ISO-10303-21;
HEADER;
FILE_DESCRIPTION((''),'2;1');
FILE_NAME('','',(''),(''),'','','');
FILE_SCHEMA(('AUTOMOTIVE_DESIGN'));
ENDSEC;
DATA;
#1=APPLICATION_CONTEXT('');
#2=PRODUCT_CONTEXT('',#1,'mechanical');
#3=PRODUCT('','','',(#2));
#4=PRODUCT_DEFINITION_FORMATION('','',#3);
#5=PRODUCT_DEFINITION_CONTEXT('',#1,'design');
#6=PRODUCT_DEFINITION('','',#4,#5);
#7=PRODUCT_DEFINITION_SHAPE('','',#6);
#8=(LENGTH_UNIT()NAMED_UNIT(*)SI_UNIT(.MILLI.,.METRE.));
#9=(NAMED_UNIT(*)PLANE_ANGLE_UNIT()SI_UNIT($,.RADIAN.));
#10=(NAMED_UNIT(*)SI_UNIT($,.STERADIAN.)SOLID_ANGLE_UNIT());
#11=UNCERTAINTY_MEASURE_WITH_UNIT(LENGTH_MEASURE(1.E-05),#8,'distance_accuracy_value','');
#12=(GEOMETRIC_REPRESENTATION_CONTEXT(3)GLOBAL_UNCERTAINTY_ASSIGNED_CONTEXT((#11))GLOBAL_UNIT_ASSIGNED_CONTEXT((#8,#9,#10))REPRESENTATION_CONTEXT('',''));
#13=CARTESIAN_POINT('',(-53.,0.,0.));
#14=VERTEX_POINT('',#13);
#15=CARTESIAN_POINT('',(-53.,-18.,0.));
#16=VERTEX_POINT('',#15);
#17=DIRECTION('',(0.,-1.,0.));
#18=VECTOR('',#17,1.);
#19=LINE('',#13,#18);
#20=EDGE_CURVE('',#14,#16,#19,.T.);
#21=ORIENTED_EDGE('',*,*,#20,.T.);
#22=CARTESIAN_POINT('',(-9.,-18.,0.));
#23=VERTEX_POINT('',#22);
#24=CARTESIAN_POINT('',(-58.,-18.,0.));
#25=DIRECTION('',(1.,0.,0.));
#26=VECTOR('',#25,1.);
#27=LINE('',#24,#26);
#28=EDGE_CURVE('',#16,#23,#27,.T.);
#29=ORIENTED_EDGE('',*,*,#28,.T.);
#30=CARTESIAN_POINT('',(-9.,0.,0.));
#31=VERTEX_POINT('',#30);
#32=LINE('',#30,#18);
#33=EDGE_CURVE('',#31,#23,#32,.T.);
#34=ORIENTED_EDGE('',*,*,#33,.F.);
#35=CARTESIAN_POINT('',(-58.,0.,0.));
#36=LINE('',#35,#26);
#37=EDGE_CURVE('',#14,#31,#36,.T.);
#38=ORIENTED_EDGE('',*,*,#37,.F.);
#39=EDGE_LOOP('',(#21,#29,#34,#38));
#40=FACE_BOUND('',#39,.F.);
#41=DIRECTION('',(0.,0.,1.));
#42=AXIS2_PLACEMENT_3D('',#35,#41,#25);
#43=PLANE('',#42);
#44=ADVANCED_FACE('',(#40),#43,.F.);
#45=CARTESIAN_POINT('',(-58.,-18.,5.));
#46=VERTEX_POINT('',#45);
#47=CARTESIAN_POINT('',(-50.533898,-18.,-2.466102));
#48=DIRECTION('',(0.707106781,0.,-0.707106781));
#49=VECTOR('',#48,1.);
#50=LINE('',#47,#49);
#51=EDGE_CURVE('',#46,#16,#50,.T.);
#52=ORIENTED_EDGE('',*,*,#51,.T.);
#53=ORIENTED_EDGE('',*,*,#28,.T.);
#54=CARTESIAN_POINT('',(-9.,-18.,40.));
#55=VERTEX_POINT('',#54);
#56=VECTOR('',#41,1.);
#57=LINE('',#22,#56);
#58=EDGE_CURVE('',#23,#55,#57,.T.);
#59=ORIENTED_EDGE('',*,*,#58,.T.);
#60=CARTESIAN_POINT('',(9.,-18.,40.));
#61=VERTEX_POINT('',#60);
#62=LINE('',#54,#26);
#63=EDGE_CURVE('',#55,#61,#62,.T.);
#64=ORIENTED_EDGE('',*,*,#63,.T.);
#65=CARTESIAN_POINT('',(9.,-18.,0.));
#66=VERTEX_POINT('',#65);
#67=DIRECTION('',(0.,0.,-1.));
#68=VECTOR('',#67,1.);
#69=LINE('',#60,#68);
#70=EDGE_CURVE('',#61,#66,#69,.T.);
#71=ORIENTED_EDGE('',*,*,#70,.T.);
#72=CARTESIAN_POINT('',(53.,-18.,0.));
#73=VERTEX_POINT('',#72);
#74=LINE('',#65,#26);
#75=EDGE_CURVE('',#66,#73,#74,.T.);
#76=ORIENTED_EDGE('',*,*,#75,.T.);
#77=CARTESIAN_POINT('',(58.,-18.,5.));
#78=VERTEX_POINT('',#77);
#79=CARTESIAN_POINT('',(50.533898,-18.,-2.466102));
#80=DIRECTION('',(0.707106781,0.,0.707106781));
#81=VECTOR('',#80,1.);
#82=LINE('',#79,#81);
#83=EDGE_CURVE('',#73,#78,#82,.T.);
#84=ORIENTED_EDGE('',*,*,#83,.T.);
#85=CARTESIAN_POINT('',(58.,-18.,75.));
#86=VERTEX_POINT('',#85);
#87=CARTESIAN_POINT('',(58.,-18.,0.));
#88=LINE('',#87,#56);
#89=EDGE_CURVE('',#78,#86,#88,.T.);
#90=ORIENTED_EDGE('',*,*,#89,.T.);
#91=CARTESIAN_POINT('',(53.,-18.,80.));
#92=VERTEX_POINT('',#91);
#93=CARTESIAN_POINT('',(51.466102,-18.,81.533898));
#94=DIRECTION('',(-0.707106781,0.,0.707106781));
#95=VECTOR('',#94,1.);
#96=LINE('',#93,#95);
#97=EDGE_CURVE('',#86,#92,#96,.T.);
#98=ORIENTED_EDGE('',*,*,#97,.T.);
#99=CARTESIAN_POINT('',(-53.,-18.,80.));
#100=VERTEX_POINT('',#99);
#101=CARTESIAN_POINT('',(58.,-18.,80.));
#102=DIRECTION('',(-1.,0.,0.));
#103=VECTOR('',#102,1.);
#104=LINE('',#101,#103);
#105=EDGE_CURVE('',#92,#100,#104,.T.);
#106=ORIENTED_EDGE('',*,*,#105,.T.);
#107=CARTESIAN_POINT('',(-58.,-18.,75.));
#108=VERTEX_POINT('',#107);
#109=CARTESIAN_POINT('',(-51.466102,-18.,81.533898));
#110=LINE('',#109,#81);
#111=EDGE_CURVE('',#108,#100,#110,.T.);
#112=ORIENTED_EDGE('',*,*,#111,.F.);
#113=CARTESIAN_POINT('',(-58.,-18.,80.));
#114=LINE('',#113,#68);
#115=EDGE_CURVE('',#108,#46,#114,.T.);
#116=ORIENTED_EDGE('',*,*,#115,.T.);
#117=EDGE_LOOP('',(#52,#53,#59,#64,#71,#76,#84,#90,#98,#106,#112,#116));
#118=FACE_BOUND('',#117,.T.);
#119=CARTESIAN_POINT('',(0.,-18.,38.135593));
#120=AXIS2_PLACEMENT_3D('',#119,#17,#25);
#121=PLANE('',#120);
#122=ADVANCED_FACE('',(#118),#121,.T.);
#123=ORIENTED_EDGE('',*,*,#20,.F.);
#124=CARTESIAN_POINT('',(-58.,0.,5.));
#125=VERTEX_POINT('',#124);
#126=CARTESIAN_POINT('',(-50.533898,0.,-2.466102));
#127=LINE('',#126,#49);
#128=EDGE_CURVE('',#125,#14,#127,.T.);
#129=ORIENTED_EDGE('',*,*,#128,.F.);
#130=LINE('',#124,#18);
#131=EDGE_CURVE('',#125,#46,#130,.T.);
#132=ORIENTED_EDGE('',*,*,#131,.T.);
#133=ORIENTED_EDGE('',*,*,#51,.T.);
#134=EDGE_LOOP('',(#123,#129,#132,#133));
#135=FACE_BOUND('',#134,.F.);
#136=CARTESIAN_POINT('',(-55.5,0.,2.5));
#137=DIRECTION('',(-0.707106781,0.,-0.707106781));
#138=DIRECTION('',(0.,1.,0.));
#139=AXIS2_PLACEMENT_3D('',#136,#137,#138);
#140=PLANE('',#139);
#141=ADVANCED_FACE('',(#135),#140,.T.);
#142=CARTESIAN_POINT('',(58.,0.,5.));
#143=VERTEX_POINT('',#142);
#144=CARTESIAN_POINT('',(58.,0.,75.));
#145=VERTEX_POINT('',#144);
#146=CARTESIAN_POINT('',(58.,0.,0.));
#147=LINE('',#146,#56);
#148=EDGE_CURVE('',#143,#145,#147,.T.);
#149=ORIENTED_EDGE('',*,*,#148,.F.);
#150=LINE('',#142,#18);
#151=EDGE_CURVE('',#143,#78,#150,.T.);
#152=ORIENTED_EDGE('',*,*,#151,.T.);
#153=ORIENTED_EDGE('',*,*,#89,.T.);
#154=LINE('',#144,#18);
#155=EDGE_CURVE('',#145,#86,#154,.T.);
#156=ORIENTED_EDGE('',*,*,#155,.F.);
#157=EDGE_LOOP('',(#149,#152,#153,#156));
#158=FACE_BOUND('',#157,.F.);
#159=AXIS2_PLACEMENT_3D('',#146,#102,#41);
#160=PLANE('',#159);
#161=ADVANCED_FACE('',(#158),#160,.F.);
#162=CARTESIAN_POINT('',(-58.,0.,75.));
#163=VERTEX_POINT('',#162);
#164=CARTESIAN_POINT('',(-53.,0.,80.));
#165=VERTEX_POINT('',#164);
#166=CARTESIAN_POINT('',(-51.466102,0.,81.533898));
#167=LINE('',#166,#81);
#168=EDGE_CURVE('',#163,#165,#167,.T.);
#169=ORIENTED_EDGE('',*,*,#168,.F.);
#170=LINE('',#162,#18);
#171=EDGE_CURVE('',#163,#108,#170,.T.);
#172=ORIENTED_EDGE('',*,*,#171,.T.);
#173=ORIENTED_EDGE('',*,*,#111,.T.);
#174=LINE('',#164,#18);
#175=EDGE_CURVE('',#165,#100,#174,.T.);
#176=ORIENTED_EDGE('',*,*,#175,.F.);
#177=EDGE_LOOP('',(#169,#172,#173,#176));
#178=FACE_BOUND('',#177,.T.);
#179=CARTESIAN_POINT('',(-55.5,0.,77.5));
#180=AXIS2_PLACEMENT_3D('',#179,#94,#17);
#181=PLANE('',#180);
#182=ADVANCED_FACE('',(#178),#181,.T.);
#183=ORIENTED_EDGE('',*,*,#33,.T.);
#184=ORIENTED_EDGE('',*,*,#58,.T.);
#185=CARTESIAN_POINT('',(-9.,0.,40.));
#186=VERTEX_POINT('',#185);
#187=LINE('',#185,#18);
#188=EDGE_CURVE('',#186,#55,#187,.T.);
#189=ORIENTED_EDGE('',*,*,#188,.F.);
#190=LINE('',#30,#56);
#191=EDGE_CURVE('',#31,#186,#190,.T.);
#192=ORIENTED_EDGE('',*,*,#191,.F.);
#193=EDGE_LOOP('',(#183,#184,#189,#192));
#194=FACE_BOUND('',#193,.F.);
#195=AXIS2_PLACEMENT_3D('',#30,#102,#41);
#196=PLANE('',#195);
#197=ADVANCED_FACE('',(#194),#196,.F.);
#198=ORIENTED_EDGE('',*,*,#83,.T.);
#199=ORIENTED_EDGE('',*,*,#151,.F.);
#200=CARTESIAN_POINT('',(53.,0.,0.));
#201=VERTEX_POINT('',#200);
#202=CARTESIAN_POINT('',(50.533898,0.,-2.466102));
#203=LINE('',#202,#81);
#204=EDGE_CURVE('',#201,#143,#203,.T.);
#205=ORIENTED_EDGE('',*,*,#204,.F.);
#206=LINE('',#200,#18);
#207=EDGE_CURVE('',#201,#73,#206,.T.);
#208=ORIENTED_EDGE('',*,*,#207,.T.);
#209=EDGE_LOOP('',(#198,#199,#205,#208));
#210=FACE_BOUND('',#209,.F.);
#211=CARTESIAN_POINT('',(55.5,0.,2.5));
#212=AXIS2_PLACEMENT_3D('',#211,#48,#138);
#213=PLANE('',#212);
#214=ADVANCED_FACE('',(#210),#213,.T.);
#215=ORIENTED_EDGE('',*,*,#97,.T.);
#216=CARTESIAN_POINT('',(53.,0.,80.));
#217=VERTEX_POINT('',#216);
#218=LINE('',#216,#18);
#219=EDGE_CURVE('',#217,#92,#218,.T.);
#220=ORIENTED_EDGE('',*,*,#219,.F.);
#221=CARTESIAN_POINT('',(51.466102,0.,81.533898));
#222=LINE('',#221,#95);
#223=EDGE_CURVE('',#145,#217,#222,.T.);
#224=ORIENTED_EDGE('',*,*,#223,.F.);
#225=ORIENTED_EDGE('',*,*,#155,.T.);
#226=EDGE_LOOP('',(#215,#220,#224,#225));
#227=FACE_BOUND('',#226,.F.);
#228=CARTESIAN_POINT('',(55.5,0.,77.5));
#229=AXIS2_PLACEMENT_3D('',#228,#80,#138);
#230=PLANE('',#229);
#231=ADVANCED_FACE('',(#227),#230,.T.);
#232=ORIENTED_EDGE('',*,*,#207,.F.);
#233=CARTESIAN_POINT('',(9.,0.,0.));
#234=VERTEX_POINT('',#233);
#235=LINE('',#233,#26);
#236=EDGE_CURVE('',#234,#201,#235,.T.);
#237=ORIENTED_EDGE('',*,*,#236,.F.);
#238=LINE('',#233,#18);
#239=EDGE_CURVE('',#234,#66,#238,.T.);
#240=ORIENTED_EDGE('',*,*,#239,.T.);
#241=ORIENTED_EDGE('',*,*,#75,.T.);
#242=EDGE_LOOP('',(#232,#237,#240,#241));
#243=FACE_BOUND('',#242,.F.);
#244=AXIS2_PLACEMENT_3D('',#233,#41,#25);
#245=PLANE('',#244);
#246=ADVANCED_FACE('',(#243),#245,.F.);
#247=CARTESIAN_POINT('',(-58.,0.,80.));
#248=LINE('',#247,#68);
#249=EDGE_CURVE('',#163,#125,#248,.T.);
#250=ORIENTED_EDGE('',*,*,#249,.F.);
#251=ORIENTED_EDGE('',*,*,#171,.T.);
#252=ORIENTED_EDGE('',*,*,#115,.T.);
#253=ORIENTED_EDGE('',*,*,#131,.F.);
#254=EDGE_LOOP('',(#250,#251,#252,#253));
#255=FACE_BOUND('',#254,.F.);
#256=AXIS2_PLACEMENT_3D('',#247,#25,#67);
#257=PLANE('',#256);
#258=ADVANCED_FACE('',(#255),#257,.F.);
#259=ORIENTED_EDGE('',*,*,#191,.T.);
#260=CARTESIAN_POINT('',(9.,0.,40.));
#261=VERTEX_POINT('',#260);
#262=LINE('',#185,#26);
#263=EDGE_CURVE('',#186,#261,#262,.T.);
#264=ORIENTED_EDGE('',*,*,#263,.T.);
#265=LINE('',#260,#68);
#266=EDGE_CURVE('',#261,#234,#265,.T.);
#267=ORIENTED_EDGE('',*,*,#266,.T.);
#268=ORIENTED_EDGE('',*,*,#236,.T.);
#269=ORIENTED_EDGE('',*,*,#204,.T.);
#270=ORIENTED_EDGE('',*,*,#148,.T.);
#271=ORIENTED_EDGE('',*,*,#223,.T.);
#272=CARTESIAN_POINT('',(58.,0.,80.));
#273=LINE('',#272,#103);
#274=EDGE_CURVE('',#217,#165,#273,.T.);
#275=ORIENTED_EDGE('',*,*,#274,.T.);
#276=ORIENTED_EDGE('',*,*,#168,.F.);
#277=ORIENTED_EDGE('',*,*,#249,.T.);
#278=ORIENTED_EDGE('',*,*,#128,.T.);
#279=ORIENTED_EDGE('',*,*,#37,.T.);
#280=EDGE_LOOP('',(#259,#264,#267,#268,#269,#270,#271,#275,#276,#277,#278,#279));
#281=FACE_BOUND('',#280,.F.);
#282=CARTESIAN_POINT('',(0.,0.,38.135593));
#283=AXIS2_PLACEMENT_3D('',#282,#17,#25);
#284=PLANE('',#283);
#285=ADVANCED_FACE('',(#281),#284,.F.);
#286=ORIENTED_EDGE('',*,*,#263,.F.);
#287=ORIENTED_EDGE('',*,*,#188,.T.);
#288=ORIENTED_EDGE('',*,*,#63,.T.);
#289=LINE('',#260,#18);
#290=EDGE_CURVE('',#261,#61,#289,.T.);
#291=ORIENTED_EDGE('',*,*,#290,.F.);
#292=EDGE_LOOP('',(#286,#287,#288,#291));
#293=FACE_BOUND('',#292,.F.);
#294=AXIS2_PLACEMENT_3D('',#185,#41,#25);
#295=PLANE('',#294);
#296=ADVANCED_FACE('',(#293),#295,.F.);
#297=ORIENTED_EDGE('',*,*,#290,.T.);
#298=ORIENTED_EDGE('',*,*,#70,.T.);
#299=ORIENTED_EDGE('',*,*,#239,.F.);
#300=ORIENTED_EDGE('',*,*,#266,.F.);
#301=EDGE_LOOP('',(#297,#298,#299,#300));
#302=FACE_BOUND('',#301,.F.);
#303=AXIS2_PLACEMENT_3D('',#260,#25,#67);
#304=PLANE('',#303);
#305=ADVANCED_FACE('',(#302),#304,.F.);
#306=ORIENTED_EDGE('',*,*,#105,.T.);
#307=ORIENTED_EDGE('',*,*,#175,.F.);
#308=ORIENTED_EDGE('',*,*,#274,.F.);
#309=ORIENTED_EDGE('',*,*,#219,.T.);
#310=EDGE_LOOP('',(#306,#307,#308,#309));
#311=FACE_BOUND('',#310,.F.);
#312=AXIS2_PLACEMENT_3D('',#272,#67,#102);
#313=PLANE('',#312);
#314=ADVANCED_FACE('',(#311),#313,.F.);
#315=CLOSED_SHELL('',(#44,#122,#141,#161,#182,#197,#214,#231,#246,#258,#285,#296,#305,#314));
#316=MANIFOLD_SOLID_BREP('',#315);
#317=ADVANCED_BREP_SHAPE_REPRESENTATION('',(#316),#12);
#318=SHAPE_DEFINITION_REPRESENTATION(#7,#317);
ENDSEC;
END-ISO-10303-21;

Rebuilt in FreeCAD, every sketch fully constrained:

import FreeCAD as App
import Part
import Sketcher

V = App.Vector
Q = App.Units.Quantity


def edges_at(feature, points):
    """Names of the edges that pass closest to the given points."""
    edges = feature.Shape.Edges
    near = lambda p: min(range(len(edges)), key=lambda i: edges[i].distToShape(Part.Vertex(*p))[0])
    return sorted({f"Edge{near(p) + 1}" for p in points})


def add_polygon(sketch, points):
    """Adds a closed chain of lines whose ends are joined by coincident constraints."""
    first, n = sketch.GeometryCount, len(points)
    for a, b in zip(points, points[1:] + points[:1]):
        sketch.addGeometry(Part.LineSegment(App.Vector(*a, 0), App.Vector(*b, 0)), False)
    for i in range(n):
        sketch.addConstraint(Sketcher.Constraint("Coincident", first + i, 2, first + (i + 1) % n, 1))

doc = App.newDocument("Part")
body = doc.addObject("PartDesign::Body", "Body")

sketch1 = doc.addObject("Sketcher::SketchObject", "Sketch")
body.addObject(sketch1)
sketch1.AttachmentSupport = (doc.XZ_Plane, [""])
sketch1.MapMode = "FlatFace"
add_polygon(sketch1, [(-58, 80), (-58, 0), (-9, 0), (-9, 40), (9, 40), (9, 0), (58, 0), (58, 80)])
sketch1.addConstraint([
    Sketcher.Constraint("Vertical", 0),
    Sketcher.Constraint("Horizontal", 1),
    Sketcher.Constraint("Vertical", 2),
    Sketcher.Constraint("Horizontal", 3),
    Sketcher.Constraint("Vertical", 4),
    Sketcher.Constraint("Horizontal", 5),
    Sketcher.Constraint("Vertical", 6),
    Sketcher.Constraint("Horizontal", 7),
    Sketcher.Constraint("Symmetric", 1, 2, 4, 2, -1, 1),
    Sketcher.Constraint("Symmetric", 0, 2, 5, 2, -2),
    Sketcher.Constraint("DistanceX", 1, 1, 1, 2, Q("49 mm")),
    Sketcher.Constraint("DistanceX", 3, 1, 3, 2, Q("18 mm")),
    Sketcher.Constraint("DistanceY", 0, 2, 0, 1, Q("80 mm")),
    Sketcher.Constraint("DistanceY", 2, 1, 2, 2, Q("40 mm")),
])
pad1 = doc.addObject("PartDesign::Pad", "Pad")
body.addObject(pad1)
pad1.Profile = sketch1
pad1.Length = 18
doc.recompute()

chamfer = doc.addObject("PartDesign::Chamfer", "Chamfer")
body.addObject(chamfer)
chamfer.Base = (pad1, edges_at(pad1, [
    (-58, -9, 80),
    (-58, -9, 0),
    (58, -9, 80),
    (58, -9, 0),
]))
chamfer.Size = 5

doc.recompute()
